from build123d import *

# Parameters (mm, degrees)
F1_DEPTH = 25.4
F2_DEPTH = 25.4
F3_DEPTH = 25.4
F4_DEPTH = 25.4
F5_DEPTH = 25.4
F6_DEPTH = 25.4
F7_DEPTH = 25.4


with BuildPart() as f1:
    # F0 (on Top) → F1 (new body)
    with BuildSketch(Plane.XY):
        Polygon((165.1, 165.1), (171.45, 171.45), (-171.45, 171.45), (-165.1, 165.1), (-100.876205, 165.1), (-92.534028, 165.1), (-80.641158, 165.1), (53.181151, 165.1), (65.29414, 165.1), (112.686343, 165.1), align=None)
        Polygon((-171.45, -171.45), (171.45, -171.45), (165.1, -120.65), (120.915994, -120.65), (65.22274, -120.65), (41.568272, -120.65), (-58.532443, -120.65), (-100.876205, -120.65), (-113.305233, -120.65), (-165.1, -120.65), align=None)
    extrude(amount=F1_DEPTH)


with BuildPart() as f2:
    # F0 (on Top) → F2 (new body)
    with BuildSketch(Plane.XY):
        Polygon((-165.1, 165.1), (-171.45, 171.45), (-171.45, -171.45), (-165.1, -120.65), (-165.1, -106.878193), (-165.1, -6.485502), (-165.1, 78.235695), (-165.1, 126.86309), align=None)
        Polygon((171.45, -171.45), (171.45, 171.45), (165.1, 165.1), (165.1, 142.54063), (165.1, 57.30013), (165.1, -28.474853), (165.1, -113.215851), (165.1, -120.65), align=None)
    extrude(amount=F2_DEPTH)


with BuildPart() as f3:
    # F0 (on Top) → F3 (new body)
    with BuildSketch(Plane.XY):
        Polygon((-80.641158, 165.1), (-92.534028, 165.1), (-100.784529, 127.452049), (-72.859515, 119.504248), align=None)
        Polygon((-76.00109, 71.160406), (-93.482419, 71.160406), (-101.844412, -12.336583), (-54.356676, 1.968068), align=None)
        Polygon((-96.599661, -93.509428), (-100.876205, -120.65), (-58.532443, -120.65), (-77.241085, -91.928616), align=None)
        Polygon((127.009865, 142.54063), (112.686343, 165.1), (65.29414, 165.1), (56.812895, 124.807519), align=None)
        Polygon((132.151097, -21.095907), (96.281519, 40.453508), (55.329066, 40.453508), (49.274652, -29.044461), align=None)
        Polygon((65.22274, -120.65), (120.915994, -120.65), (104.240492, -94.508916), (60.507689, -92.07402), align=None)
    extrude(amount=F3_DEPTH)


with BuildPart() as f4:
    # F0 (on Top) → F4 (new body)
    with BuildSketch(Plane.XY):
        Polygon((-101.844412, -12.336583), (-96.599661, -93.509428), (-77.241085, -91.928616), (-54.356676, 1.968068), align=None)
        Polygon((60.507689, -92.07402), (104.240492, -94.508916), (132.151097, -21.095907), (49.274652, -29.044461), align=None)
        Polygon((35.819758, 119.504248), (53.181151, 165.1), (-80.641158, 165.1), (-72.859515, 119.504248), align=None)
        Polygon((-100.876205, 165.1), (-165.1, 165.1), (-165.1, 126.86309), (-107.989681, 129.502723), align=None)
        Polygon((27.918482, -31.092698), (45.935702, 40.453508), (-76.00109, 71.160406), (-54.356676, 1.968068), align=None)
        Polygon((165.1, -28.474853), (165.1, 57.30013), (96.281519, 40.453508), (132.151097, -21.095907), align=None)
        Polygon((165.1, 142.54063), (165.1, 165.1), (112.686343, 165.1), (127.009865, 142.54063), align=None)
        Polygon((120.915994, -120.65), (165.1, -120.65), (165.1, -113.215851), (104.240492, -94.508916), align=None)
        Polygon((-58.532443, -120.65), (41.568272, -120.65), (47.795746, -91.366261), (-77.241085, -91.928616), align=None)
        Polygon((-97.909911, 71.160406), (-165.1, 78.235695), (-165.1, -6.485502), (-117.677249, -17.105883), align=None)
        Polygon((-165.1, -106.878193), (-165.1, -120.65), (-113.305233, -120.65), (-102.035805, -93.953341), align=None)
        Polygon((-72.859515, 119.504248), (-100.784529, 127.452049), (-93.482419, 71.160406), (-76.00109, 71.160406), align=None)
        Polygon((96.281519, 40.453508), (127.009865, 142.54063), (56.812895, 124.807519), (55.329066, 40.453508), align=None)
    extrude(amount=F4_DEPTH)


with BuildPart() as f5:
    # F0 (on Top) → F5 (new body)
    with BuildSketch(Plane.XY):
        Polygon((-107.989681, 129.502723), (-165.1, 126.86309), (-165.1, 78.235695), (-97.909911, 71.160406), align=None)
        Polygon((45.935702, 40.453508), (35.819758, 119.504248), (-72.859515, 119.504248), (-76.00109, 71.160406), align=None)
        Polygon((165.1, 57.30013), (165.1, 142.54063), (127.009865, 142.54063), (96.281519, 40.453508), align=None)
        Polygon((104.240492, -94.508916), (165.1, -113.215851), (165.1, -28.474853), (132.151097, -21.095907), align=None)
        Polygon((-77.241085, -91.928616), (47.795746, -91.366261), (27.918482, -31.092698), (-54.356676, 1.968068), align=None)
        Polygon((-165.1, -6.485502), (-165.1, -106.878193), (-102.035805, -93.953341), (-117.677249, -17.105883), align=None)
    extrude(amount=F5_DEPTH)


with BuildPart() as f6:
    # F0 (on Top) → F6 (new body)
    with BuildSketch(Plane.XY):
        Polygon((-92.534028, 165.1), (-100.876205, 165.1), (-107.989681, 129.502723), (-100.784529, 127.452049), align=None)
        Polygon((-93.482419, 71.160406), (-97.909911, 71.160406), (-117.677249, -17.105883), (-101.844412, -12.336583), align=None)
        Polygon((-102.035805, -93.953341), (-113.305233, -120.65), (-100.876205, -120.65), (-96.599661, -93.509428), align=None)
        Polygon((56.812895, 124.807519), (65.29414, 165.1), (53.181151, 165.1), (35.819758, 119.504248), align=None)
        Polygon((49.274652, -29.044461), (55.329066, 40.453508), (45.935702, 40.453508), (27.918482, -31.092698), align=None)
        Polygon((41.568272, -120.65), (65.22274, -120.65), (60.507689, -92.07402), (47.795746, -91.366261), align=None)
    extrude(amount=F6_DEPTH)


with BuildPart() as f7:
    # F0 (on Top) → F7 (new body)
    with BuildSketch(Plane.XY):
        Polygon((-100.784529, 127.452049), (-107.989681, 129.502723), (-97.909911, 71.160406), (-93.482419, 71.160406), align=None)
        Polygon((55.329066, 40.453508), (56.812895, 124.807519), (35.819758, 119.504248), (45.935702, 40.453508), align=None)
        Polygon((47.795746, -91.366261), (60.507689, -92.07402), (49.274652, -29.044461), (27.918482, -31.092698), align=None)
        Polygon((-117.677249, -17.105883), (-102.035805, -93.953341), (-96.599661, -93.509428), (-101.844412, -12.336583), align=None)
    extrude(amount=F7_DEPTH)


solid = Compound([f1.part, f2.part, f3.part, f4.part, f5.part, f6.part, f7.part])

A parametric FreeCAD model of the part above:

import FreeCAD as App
import Part
import Sketcher

V = App.Vector
Q = App.Units.Quantity

doc = App.newDocument("Part")
body = doc.addObject("PartDesign::Body", "Body")
body.AllowCompound = True

# Sketch on XY plane
sketch1 = body.newObject("Sketcher::SketchObject", "Sketch")
sketch1.AttachmentSupport = (doc.getObject("XY_Plane"), [""])
sketch1.MapMode = "FlatFace"
sketch1.addGeometry([
    Part.LineSegment(V(165.1, 165.1, 0), V(171.45, 171.45, 0)),  # 0
    Part.LineSegment(V(171.45, 171.45, 0), V(-171.45, 171.45, 0)),  # 1
    Part.LineSegment(V(-171.45, 171.45, 0), V(-165.1, 165.1, 0)),  # 2
    Part.LineSegment(V(-165.1, 165.1, 0), V(165.1, 165.1, 0)),  # 3
    Part.LineSegment(V(-171.45, -171.45, 0), V(171.45, -171.45, 0)),  # 4
    Part.LineSegment(V(171.45, -171.45, 0), V(165.1, -120.65, 0)),  # 5
    Part.LineSegment(V(165.1, -120.65, 0), V(-165.1, -120.65, 0)),  # 6
    Part.LineSegment(V(-165.1, -120.65, 0), V(-171.45, -171.45, 0)),  # 7
], False)
sketch1.addConstraint([
    Sketcher.Constraint("Coincident", 0, 2, 1, 1),
    Sketcher.Constraint("Coincident", 1, 2, 2, 1),
    Sketcher.Constraint("Coincident", 2, 2, 3, 1),
    Sketcher.Constraint("Coincident", 3, 2, 0, 1),
    Sketcher.Constraint("Coincident", 4, 2, 5, 1),
    Sketcher.Constraint("Coincident", 5, 2, 6, 1),
    Sketcher.Constraint("Coincident", 6, 2, 7, 1),
    Sketcher.Constraint("Coincident", 7, 2, 4, 1),
    Sketcher.Constraint("Horizontal", 1),
    Sketcher.Constraint("Horizontal", 3),
    Sketcher.Constraint("Horizontal", 4),
    Sketcher.Constraint("Horizontal", 6),
    Sketcher.Constraint("Symmetric", 1, 2, 4, 2, -1, 1),
    Sketcher.Constraint("Perpendicular", 0, 2),
    Sketcher.Constraint("Vertical", 0, 2, 4, 2),
    Sketcher.Constraint("Vertical", 3, 2, 5, 2),
    Sketcher.Constraint("Vertical", 2, 2, 6, 2),
    Sketcher.Constraint("Vertical", 1, 2, 7, 2),
    Sketcher.Constraint("Equal", 0, 2),
    Sketcher.Constraint("DistanceX", 3, 1, 3, 2, Q("13 in")),
    Sketcher.Constraint("DistanceX", 1, 2, 1, 1, Q("13.5 in")),
    Sketcher.Constraint("DistanceY", 4, 2, 5, 2, Q("2 in")),
    Sketcher.Constraint("DistanceY", -1, 1, 2, 2, Q("6.5 in")),
])
pad1 = body.newObject("PartDesign::Pad", "Pad")
pad1.Profile = sketch1
pad1.Length = Q("1 in")
body2 = doc.addObject("PartDesign::Body", "Body001")
body2.AllowCompound = True

# Sketch on XY plane
sketch2 = body2.newObject("Sketcher::SketchObject", "Sketch001")
sketch2.AttachmentSupport = (doc.getObject("XY_Plane001"), [""])
sketch2.MapMode = "FlatFace"
sketch2.addGeometry([
    Part.LineSegment(V(-165.1, 165.1, 0), V(-171.45, 171.45, 0)),  # 0
    Part.LineSegment(V(-171.45, 171.45, 0), V(-171.45, -171.45, 0)),  # 1
    Part.LineSegment(V(-171.45, -171.45, 0), V(-165.1, -120.65, 0)),  # 2
    Part.LineSegment(V(-165.1, -120.65, 0), V(-165.1, 165.1, 0)),  # 3
    Part.LineSegment(V(171.45, -171.45, 0), V(171.45, 171.45, 0)),  # 4
    Part.LineSegment(V(171.45, 171.45, 0), V(165.1, 165.1, 0)),  # 5
    Part.LineSegment(V(165.1, 165.1, 0), V(165.1, -120.65, 0)),  # 6
    Part.LineSegment(V(165.1, -120.65, 0), V(171.45, -171.45, 0)),  # 7
], False)
sketch2.addConstraint([
    Sketcher.Constraint("Coincident", 0, 2, 1, 1),
    Sketcher.Constraint("Coincident", 1, 2, 2, 1),
    Sketcher.Constraint("Coincident", 2, 2, 3, 1),
    Sketcher.Constraint("Coincident", 3, 2, 0, 1),
    Sketcher.Constraint("Coincident", 4, 2, 5, 1),
    Sketcher.Constraint("Coincident", 5, 2, 6, 1),
    Sketcher.Constraint("Coincident", 6, 2, 7, 1),
    Sketcher.Constraint("Coincident", 7, 2, 4, 1),
    Sketcher.Constraint("Vertical", 1),
    Sketcher.Constraint("Vertical", 3),
    Sketcher.Constraint("Vertical", 4),
    Sketcher.Constraint("Vertical", 6),
    Sketcher.Constraint("Symmetric", 1, 2, 4, 2, -1, 1),
    Sketcher.Constraint("Symmetric", 3, 2, 5, 2, -2),
    Sketcher.Constraint("Perpendicular", 0, 5),
    Sketcher.Constraint("Horizontal", 0, 2, 4, 2),
    Sketcher.Constraint("Horizontal", 2, 2, 6, 2),
    Sketcher.Constraint("Horizontal", 1, 2, 7, 2),
    Sketcher.Constraint("DistanceY", 1, 2, 1, 1, Q("13.5 in")),
    Sketcher.Constraint("DistanceY", 1, 2, 2, 2, Q("2 in")),
    Sketcher.Constraint("DistanceX", 3, 2, 5, 2, Q("13 in")),
    Sketcher.Constraint("DistanceY", 3, 1, 3, 2, Q("11.25 in")),
])
pad2 = body2.newObject("PartDesign::Pad", "Pad001")
pad2.Profile = sketch2
pad2.Length = Q("1 in")
body3 = doc.addObject("PartDesign::Body", "Body002")
body3.AllowCompound = True

# Sketch on XY plane
sketch3 = body3.newObject("Sketcher::SketchObject", "Sketch002")
sketch3.AttachmentSupport = (doc.getObject("XY_Plane002"), [""])
sketch3.MapMode = "FlatFace"
sketch3.addGeometry([
    Part.LineSegment(V(-80.641158, 165.1, 0), V(-92.534028, 165.1, 0)),  # 0
    Part.LineSegment(V(-92.534028, 165.1, 0), V(-100.784529, 127.452049, 0)),  # 1
    Part.LineSegment(V(-100.784529, 127.452049, 0), V(-72.859515, 119.504248, 0)),  # 2
    Part.LineSegment(V(-72.859515, 119.504248, 0), V(-80.641158, 165.1, 0)),  # 3
    Part.LineSegment(V(-76.00109, 71.160406, 0), V(-93.482419, 71.160406, 0)),  # 4
    Part.LineSegment(V(-93.482419, 71.160406, 0), V(-101.844412, -12.336583, 0)),  # 5
    Part.LineSegment(V(-101.844412, -12.336583, 0), V(-54.356676, 1.968068, 0)),  # 6
    Part.LineSegment(V(-54.356676, 1.968068, 0), V(-76.00109, 71.160406, 0)),  # 7
    Part.LineSegment(V(-96.599661, -93.509428, 0), V(-100.876205, -120.65, 0)),  # 8
    Part.LineSegment(V(-100.876205, -120.65, 0), V(-58.532443, -120.65, 0)),  # 9
    Part.LineSegment(V(-58.532443, -120.65, 0), V(-77.241085, -91.928616, 0)),  # 10
    Part.LineSegment(V(-77.241085, -91.928616, 0), V(-96.599661, -93.509428, 0)),  # 11
    Part.LineSegment(V(127.009865, 142.54063, 0), V(112.686343, 165.1, 0)),  # 12
    Part.LineSegment(V(112.686343, 165.1, 0), V(65.29414, 165.1, 0)),  # 13
    Part.LineSegment(V(65.29414, 165.1, 0), V(56.812895, 124.807519, 0)),  # 14
    Part.LineSegment(V(56.812895, 124.807519, 0), V(127.009865, 142.54063, 0)),  # 15
    Part.LineSegment(V(132.151097, -21.095907, 0), V(96.281519, 40.453508, 0)),  # 16
    Part.LineSegment(V(96.281519, 40.453508, 0), V(55.329066, 40.453508, 0)),  # 17
    Part.LineSegment(V(55.329066, 40.453508, 0), V(49.274652, -29.044461, 0)),  # 18
    Part.LineSegment(V(49.274652, -29.044461, 0), V(132.151097, -21.095907, 0)),  # 19
    Part.LineSegment(V(65.22274, -120.65, 0), V(120.915994, -120.65, 0)),  # 20
    Part.LineSegment(V(120.915994, -120.65, 0), V(104.240492, -94.508916, 0)),  # 21
    Part.LineSegment(V(104.240492, -94.508916, 0), V(60.507689, -92.07402, 0)),  # 22
    Part.LineSegment(V(60.507689, -92.07402, 0), V(65.22274, -120.65, 0)),  # 23
], False)
sketch3.addConstraint([
    Sketcher.Constraint("Coincident", 0, 2, 1, 1),
    Sketcher.Constraint("Coincident", 1, 2, 2, 1),
    Sketcher.Constraint("Coincident", 2, 2, 3, 1),
    Sketcher.Constraint("Coincident", 3, 2, 0, 1),
    Sketcher.Constraint("Coincident", 4, 2, 5, 1),
    Sketcher.Constraint("Coincident", 5, 2, 6, 1),
    Sketcher.Constraint("Coincident", 6, 2, 7, 1),
    Sketcher.Constraint("Coincident", 7, 2, 4, 1),
    Sketcher.Constraint("Coincident", 8, 2, 9, 1),
    Sketcher.Constraint("Coincident", 9, 2, 10, 1),
    Sketcher.Constraint("Coincident", 10, 2, 11, 1),
    Sketcher.Constraint("Coincident", 11, 2, 8, 1),
    Sketcher.Constraint("Coincident", 12, 2, 13, 1),
    Sketcher.Constraint("Coincident", 13, 2, 14, 1),
    Sketcher.Constraint("Coincident", 14, 2, 15, 1),
    Sketcher.Constraint("Coincident", 15, 2, 12, 1),
    Sketcher.Constraint("Coincident", 16, 2, 17, 1),
    Sketcher.Constraint("Coincident", 17, 2, 18, 1),
    Sketcher.Constraint("Coincident", 18, 2, 19, 1),
    Sketcher.Constraint("Coincident", 19, 2, 16, 1),
    Sketcher.Constraint("Coincident", 20, 2, 21, 1),
    Sketcher.Constraint("Coincident", 21, 2, 22, 1),
    Sketcher.Constraint("Coincident", 22, 2, 23, 1),
    Sketcher.Constraint("Coincident", 23, 2, 20, 1),
    Sketcher.Constraint("Horizontal", 0),
    Sketcher.Constraint("Horizontal", 4),
    Sketcher.Constraint("Horizontal", 9),
    Sketcher.Constraint("Horizontal", 13),
    Sketcher.Constraint("Horizontal", 17),
    Sketcher.Constraint("Horizontal", 20),
    Sketcher.Constraint("Horizontal", 3, 2, 12, 2),
    Sketcher.Constraint("Horizontal", 9, 2, 20, 2),
    Sketcher.Constraint("DistanceY", -1, 1, 0, 2, Q("6.5 in")),
    Sketcher.Constraint("DistanceY", 8, 2, -1, 1, Q("4.75 in")),
    Sketcher.Constraint("DistanceX", 0, 2, 0, 1, Q("11.89287 mm")),
    Sketcher.Constraint("DistanceX", 4, 2, 4, 1, Q("17.481329 mm")),
    Sketcher.Constraint("DistanceX", 9, 1, 9, 2, Q("42.343762 mm")),
    Sketcher.Constraint("DistanceX", 1, 2, 0, 2, Q("8.250501 mm")),
    Sketcher.Constraint("DistanceY", 2, 2, 1, 2, Q("7.947801 mm")),
    Sketcher.Constraint("DistanceX", 3, 2, 12, 2, Q("193.327501 mm")),
    Sketcher.Constraint("DistanceX", 17, 2, 15, 2, Q("71.680799 mm")),
    Sketcher.Constraint("DistanceX", 14, 2, 19, 2, Q("75.338202 mm")),
    Sketcher.Constraint("DistanceX", 21, 2, 20, 2, Q("16.675502 mm")),
    Sketcher.Constraint("Distance", 5, Q("83.91466 mm")),
    Sketcher.Constraint("Distance", 7, Q("72.498692 mm")),
    Sketcher.Constraint("Distance", 10, Q("34.277269 mm")),
    Sketcher.Constraint("Distance", 18, Q("69.76119 mm")),
    Sketcher.Constraint("Distance", 19, Q("83.256739 mm")),
    Sketcher.Constraint("Distance", 23, Q("28.962361 mm")),
    Sketcher.Constraint("DistanceX", 13, 2, 13, 1, Q("47.392203 mm")),
    Sketcher.Constraint("DistanceX", 17, 2, 17, 1, Q("40.952453 mm")),
    Sketcher.Constraint("DistanceX", 20, 1, 20, 2, Q("55.693254 mm")),
    Sketcher.Constraint("DistanceX", 0, 2, -1, 1, Q("92.534028 mm")),
    Sketcher.Constraint("DistanceY", -1, 1, 1, 2, Q("127.452049 mm")),
    Sketcher.Constraint("DistanceX", 4, 2, -1, 1, Q("93.482419 mm")),
    Sketcher.Constraint("DistanceX", 11, 2, -1, 1, Q("96.599661 mm")),
    Sketcher.Constraint("DistanceY", 11, 2, -1, 1, Q("93.509428 mm")),
    Sketcher.Constraint("DistanceY", -1, 1, 14, 2, Q("124.807519 mm")),
    Sketcher.Constraint("DistanceY", -1, 1, 15, 2, Q("142.54063 mm")),
    Sketcher.Constraint("DistanceX", -1, 1, 16, 2, Q("96.281519 mm")),
    Sketcher.Constraint("DistanceY", 18, 2, -1, 1, Q("29.044461 mm")),
    Sketcher.Constraint("DistanceX", -1, 1, 22, 2, Q("60.507689 mm")),
    Sketcher.Constraint("DistanceY", 22, 2, -1, 1, Q("92.07402 mm")),
    Sketcher.Constraint("DistanceY", 5, 2, 4, 2, Q("83.496989 mm")),
    Sketcher.Constraint("DistanceY", 5, 2, 2, 2, Q("131.840831 mm")),
    Sketcher.Constraint("DistanceY", 5, 2, 6, 2, Q("14.304651 mm")),
    Sketcher.Constraint("DistanceX", 2, 2, 6, 2, Q("18.502839 mm")),
    Sketcher.Constraint("DistanceX", 8, 2, 6, 2, Q("46.519529 mm")),
    Sketcher.Constraint("DistanceX", 10, 2, 9, 2, Q("18.708642 mm")),
    Sketcher.Constraint("DistanceX", 2, 2, 14, 2, Q("129.67241 mm")),
    Sketcher.Constraint("DistanceY", 16, 2, 14, 2, Q("84.354011 mm")),
    Sketcher.Constraint("DistanceY", 21, 2, 19, 2, Q("73.413009 mm")),
])
pad3 = body3.newObject("PartDesign::Pad", "Pad002")
pad3.Profile = sketch3
pad3.Length = Q("1 in")
body4 = doc.addObject("PartDesign::Body", "Body003")
body4.AllowCompound = True

# Sketch on XY plane
sketch4 = body4.newObject("Sketcher::SketchObject", "Sketch003")
sketch4.AttachmentSupport = (doc.getObject("XY_Plane003"), [""])
sketch4.MapMode = "FlatFace"
sketch4.addGeometry([
    Part.LineSegment(V(-101.844412, -12.336583, 0), V(-96.599661, -93.509428, 0)),  # 0
    Part.LineSegment(V(-96.599661, -93.509428, 0), V(-77.241085, -91.928616, 0)),  # 1
    Part.LineSegment(V(-77.241085, -91.928616, 0), V(-54.356676, 1.968068, 0)),  # 2
    Part.LineSegment(V(-54.356676, 1.968068, 0), V(-101.844412, -12.336583, 0)),  # 3
    Part.LineSegment(V(60.507689, -92.07402, 0), V(104.240492, -94.508916, 0)),  # 4
    Part.LineSegment(V(104.240492, -94.508916, 0), V(132.151097, -21.095907, 0)),  # 5
    Part.LineSegment(V(132.151097, -21.095907, 0), V(49.274652, -29.044461, 0)),  # 6
    Part.LineSegment(V(49.274652, -29.044461, 0), V(60.507689, -92.07402, 0)),  # 7
    Part.LineSegment(V(35.819758, 119.504248, 0), V(53.181151, 165.1, 0)),  # 8
    Part.LineSegment(V(53.181151, 165.1, 0), V(-80.641158, 165.1, 0)),  # 9
    Part.LineSegment(V(-80.641158, 165.1, 0), V(-72.859515, 119.504248, 0)),  # 10
    Part.LineSegment(V(-72.859515, 119.504248, 0), V(35.819758, 119.504248, 0)),  # 11
    Part.LineSegment(V(-100.876205, 165.1, 0), V(-165.1, 165.1, 0)),  # 12
    Part.LineSegment(V(-165.1, 165.1, 0), V(-165.1, 126.86309, 0)),  # 13
    Part.LineSegment(V(-165.1, 126.86309, 0), V(-107.989681, 129.502723, 0)),  # 14
    Part.LineSegment(V(-107.989681, 129.502723, 0), V(-100.876205, 165.1, 0)),  # 15
    Part.LineSegment(V(27.918482, -31.092698, 0), V(45.935702, 40.453508, 0)),  # 16
    Part.LineSegment(V(45.935702, 40.453508, 0), V(-76.00109, 71.160406, 0)),  # 17
    Part.LineSegment(V(-76.00109, 71.160406, 0), V(-54.356676, 1.968068, 0)),  # 18
    Part.LineSegment(V(-54.356676, 1.968068, 0), V(27.918482, -31.092698, 0)),  # 19
    Part.LineSegment(V(165.1, -28.474853, 0), V(165.1, 57.30013, 0)),  # 20
    Part.LineSegment(V(165.1, 57.30013, 0), V(96.281519, 40.453508, 0)),  # 21
    Part.LineSegment(V(96.281519, 40.453508, 0), V(132.151097, -21.095907, 0)),  # 22
    Part.LineSegment(V(132.151097, -21.095907, 0), V(165.1, -28.474853, 0)),  # 23
    Part.LineSegment(V(165.1, 142.54063, 0), V(165.1, 165.1, 0)),  # 24
    Part.LineSegment(V(165.1, 165.1, 0), V(112.686343, 165.1, 0)),  # 25
    Part.LineSegment(V(112.686343, 165.1, 0), V(127.009865, 142.54063, 0)),  # 26
    Part.LineSegment(V(127.009865, 142.54063, 0), V(165.1, 142.54063, 0)),  # 27
    Part.LineSegment(V(120.915994, -120.65, 0), V(165.1, -120.65, 0)),  # 28
    Part.LineSegment(V(165.1, -120.65, 0), V(165.1, -113.215851, 0)),  # 29
    Part.LineSegment(V(165.1, -113.215851, 0), V(104.240492, -94.508916, 0)),  # 30
    Part.LineSegment(V(104.240492, -94.508916, 0), V(120.915994, -120.65, 0)),  # 31
    Part.LineSegment(V(-58.532443, -120.65, 0), V(41.568272, -120.65, 0)),  # 32
    Part.LineSegment(V(41.568272, -120.65, 0), V(47.795746, -91.366261, 0)),  # 33
    Part.LineSegment(V(47.795746, -91.366261, 0), V(-77.241085, -91.928616, 0)),  # 34
    Part.LineSegment(V(-77.241085, -91.928616, 0), V(-58.532443, -120.65, 0)),  # 35
    Part.LineSegment(V(-97.909911, 71.160406, 0), V(-165.1, 78.235695, 0)),  # 36
    Part.LineSegment(V(-165.1, 78.235695, 0), V(-165.1, -6.485502, 0)),  # 37
    Part.LineSegment(V(-165.1, -6.485502, 0), V(-117.677249, -17.105883, 0)),  # 38
    Part.LineSegment(V(-117.677249, -17.105883, 0), V(-97.909911, 71.160406, 0)),  # 39
    Part.LineSegment(V(-165.1, -106.878193, 0), V(-165.1, -120.65, 0)),  # 40
    Part.LineSegment(V(-165.1, -120.65, 0), V(-113.305233, -120.65, 0)),  # 41
    Part.LineSegment(V(-113.305233, -120.65, 0), V(-102.035805, -93.953341, 0)),  # 42
    Part.LineSegment(V(-102.035805, -93.953341, 0), V(-165.1, -106.878193, 0)),  # 43
    Part.LineSegment(V(-72.859515, 119.504248, 0), V(-100.784529, 127.452049, 0)),  # 44
    Part.LineSegment(V(-100.784529, 127.452049, 0), V(-93.482419, 71.160406, 0)),  # 45
    Part.LineSegment(V(-93.482419, 71.160406, 0), V(-76.00109, 71.160406, 0)),  # 46
    Part.LineSegment(V(-76.00109, 71.160406, 0), V(-72.859515, 119.504248, 0)),  # 47
    Part.LineSegment(V(96.281519, 40.453508, 0), V(127.009865, 142.54063, 0)),  # 48
    Part.LineSegment(V(127.009865, 142.54063, 0), V(56.812895, 124.807519, 0)),  # 49
    Part.LineSegment(V(56.812895, 124.807519, 0), V(55.329066, 40.453508, 0)),  # 50
    Part.LineSegment(V(55.329066, 40.453508, 0), V(96.281519, 40.453508, 0)),  # 51
], False)
sketch4.addConstraint([
    Sketcher.Constraint("Coincident", 0, 2, 1, 1),
    Sketcher.Constraint("Coincident", 1, 2, 2, 1),
    Sketcher.Constraint("Coincident", 2, 2, 3, 1),
    Sketcher.Constraint("Coincident", 3, 2, 0, 1),
    Sketcher.Constraint("Coincident", 4, 2, 5, 1),
    Sketcher.Constraint("Coincident", 5, 2, 6, 1),
    Sketcher.Constraint("Coincident", 6, 2, 7, 1),
    Sketcher.Constraint("Coincident", 7, 2, 4, 1),
    Sketcher.Constraint("Coincident", 8, 2, 9, 1),
    Sketcher.Constraint("Coincident", 9, 2, 10, 1),
    Sketcher.Constraint("Coincident", 10, 2, 11, 1),
    Sketcher.Constraint("Coincident", 11, 2, 8, 1),
    Sketcher.Constraint("Coincident", 12, 2, 13, 1),
    Sketcher.Constraint("Coincident", 13, 2, 14, 1),
    Sketcher.Constraint("Coincident", 14, 2, 15, 1),
    Sketcher.Constraint("Coincident", 15, 2, 12, 1),
    Sketcher.Constraint("Coincident", 16, 2, 17, 1),
    Sketcher.Constraint("Coincident", 17, 2, 18, 1),
    Sketcher.Constraint("Coincident", 18, 2, 19, 1),
    Sketcher.Constraint("Coincident", 19, 2, 16, 1),
    Sketcher.Constraint("Coincident", 20, 2, 21, 1),
    Sketcher.Constraint("Coincident", 21, 2, 22, 1),
    Sketcher.Constraint("Coincident", 22, 2, 23, 1),
    Sketcher.Constraint("Coincident", 23, 2, 20, 1),
    Sketcher.Constraint("Coincident", 24, 2, 25, 1),
    Sketcher.Constraint("Coincident", 25, 2, 26, 1),
    Sketcher.Constraint("Coincident", 26, 2, 27, 1),
    Sketcher.Constraint("Coincident", 27, 2, 24, 1),
    Sketcher.Constraint("Coincident", 28, 2, 29, 1),
    Sketcher.Constraint("Coincident", 29, 2, 30, 1),
    Sketcher.Constraint("Coincident", 30, 2, 31, 1),
    Sketcher.Constraint("Coincident", 31, 2, 28, 1),
    Sketcher.Constraint("Coincident", 32, 2, 33, 1),
    Sketcher.Constraint("Coincident", 33, 2, 34, 1),
    Sketcher.Constraint("Coincident", 34, 2, 35, 1),
    Sketcher.Constraint("Coincident", 35, 2, 32, 1),
    Sketcher.Constraint("Coincident", 36, 2, 37, 1),
    Sketcher.Constraint("Coincident", 37, 2, 38, 1),
    Sketcher.Constraint("Coincident", 38, 2, 39, 1),
    Sketcher.Constraint("Coincident", 39, 2, 36, 1),
    Sketcher.Constraint("Coincident", 40, 2, 41, 1),
    Sketcher.Constraint("Coincident", 41, 2, 42, 1),
    Sketcher.Constraint("Coincident", 42, 2, 43, 1),
    Sketcher.Constraint("Coincident", 43, 2, 40, 1),
    Sketcher.Constraint("Coincident", 44, 2, 45, 1),
    Sketcher.Constraint("Coincident", 45, 2, 46, 1),
    Sketcher.Constraint("Coincident", 46, 2, 47, 1),
    Sketcher.Constraint("Coincident", 47, 2, 44, 1),
    Sketcher.Constraint("Coincident", 48, 2, 49, 1),
    Sketcher.Constraint("Coincident", 49, 2, 50, 1),
    Sketcher.Constraint("Coincident", 50, 2, 51, 1),
    Sketcher.Constraint("Coincident", 51, 2, 48, 1),
    Sketcher.Constraint("Horizontal", 9),
    Sketcher.Constraint("Horizontal", 11),
    Sketcher.Constraint("Horizontal", 12),
    Sketcher.Constraint("Vertical", 13),
    Sketcher.Constraint("Vertical", 20),
    Sketcher.Constraint("Vertical", 24),
    Sketcher.Constraint("Horizontal", 25),
    Sketcher.Constraint("Horizontal", 27),
    Sketcher.Constraint("Horizontal", 28),
    Sketcher.Constraint("Vertical", 29),
    Sketcher.Constraint("Horizontal", 32),
    Sketcher.Constraint("Vertical", 37),
    Sketcher.Constraint("Vertical", 40),
    Sketcher.Constraint("Horizontal", 41),
    Sketcher.Constraint("Horizontal", 46),
    Sketcher.Constraint("Horizontal", 51),
    Sketcher.Constraint("Coincident", 18, 2, 2, 2),
    Sketcher.Constraint("Coincident", 22, 2, 5, 2),
    Sketcher.Constraint("Coincident", 30, 2, 4, 2),
    Sketcher.Constraint("Coincident", 34, 2, 1, 2),
    Sketcher.Constraint("Coincident", 46, 2, 17, 2),
    Sketcher.Constraint("Coincident", 47, 2, 10, 2),
    Sketcher.Constraint("Coincident", 48, 2, 26, 2),
    Sketcher.Constraint("Coincident", 51, 2, 21, 2),
    Sketcher.Constraint("Symmetric", 12, 2, 24, 2, -2),
    Sketcher.Constraint("Symmetric", 28, 2, 40, 2, -2),
    Sketcher.Constraint("Perpendicular", 16, 17),
    Sketcher.Constraint("Parallel", 23, 38),
    Sketcher.Constraint("Perpendicular", 38, 39),
    Sketcher.Constraint("Horizontal", 9, 2, 12, 2),
    Sketcher.Constraint("Horizontal", 16, 2, 21, 2),
    Sketcher.Constraint("Horizontal", 31, 2, 32, 2),
    Sketcher.Constraint("Horizontal", 17, 2, 39, 2),
    Sketcher.Constraint("Vertical", 23, 2, 24, 2),
    Sketcher.Constraint("Vertical", 27, 2, 28, 2),
    Sketcher.Constraint("Vertical", 13, 2, 36, 2),
    Sketcher.Constraint("DistanceY", -1, 1, 8, 2, Q("6.5 in")),
    Sketcher.Constraint("DistanceX", 12, 2, -1, 1, Q("6.5 in")),
    Sketcher.Constraint("DistanceY", 28, 2, -1, 1, Q("4.75 in")),
    Sketcher.Constraint("Distance", 48, Q("106.611499 mm")),
    Sketcher.Constraint("DistanceX", 9, 2, 9, 1, Q("133.822309 mm")),
    Sketcher.Constraint("DistanceX", 46, 1, 46, 2, Q("17.481329 mm")),
    Sketcher.Constraint("DistanceY", 13, 2, 13, 1, Q("38.23691 mm")),
    Sketcher.Constraint("DistanceY", 24, 1, 24, 2, Q("22.55937 mm")),
    Sketcher.Constraint("DistanceY", 29, 1, 29, 2, Q("7.434149 mm")),
    Sketcher.Constraint("DistanceY", 4, 2, 1, 2, Q("2.5803 mm")),
    Sketcher.Constraint("DistanceX", 6, 2, 8, 2, Q("3.906499 mm")),
    Sketcher.Constraint("DistanceX", 16, 2, 20, 2, Q("119.164298 mm")),
    Sketcher.Constraint("DistanceY", 20, 2, 26, 2, Q("85.2405 mm")),
    Sketcher.Constraint("DistanceY", 29, 2, 23, 2, Q("84.740998 mm")),
    Sketcher.Constraint("DistanceX", 4, 2, 31, 2, Q("16.675502 mm")),
    Sketcher.Constraint("DistanceY", 33, 2, 6, 2, Q("62.3218 mm")),
    Sketcher.Constraint("DistanceY", 38, 2, 3, 2, Q("4.7693 mm")),
    Sketcher.Constraint("DistanceY", 10, 2, 44, 2, Q("7.947801 mm")),
    Sketcher.Constraint("Distance", 2, Q("96.645142 mm")),
    Sketcher.Constraint("Distance", 5, Q("78.539619 mm")),
    Sketcher.Constraint("Distance", 6, Q("83.256739 mm")),
    Sketcher.Constraint("Distance", 14, Q("57.171288 mm")),
    Sketcher.Constraint("Distance", 15, Q("36.30107 mm")),
    Sketcher.Constraint("Distance", 16, Q("73.779942 mm")),
    Sketcher.Constraint("Distance", 18, Q("72.498692 mm")),
    Sketcher.Constraint("Distance", 21, Q("70.85049 mm")),
    Sketcher.Constraint("Distance", 35, Q("34.277269 mm")),
    Sketcher.Constraint("Distance", 39, Q("90.45267 mm")),
    Sketcher.Constraint("Distance", 43, Q("64.37503 mm")),
    Sketcher.Constraint("Distance", 45, Q("56.763279 mm")),
    Sketcher.Constraint("Distance", 47, Q("48.44581 mm")),
    Sketcher.Constraint("Distance", 50, Q("84.367061 mm")),
    Sketcher.Constraint("DistanceX", 11, 1, 11, 2, Q("108.679273 mm")),
    Sketcher.Constraint("DistanceX", 12, 2, 12, 1, Q("64.223795 mm")),
    Sketcher.Constraint("DistanceX", 25, 2, 25, 1, Q("52.413657 mm")),
    Sketcher.Constraint("DistanceX", 27, 1, 27, 2, Q("38.090135 mm")),
    Sketcher.Constraint("DistanceX", 28, 1, 28, 2, Q("44.184006 mm")),
    Sketcher.Constraint("DistanceX", 32, 1, 32, 2, Q("100.100715 mm")),
    Sketcher.Constraint("DistanceX", 41, 1, 41, 2, Q("51.794767 mm")),
    Sketcher.Constraint("DistanceX", 51, 1, 51, 2, Q("40.952453 mm")),
    Sketcher.Constraint("DistanceY", 37, 2, 37, 1, Q("84.721197 mm")),
    Sketcher.Constraint("DistanceY", 40, 2, 40, 1, Q("13.771807 mm")),
    Sketcher.Constraint("DistanceX", 0, 2, -1, 1, Q("96.599661 mm")),
    Sketcher.Constraint("DistanceY", 0, 2, -1, 1, Q("93.509428 mm")),
    Sketcher.Constraint("DistanceY", 6, 2, -1, 1, Q("29.044461 mm")),
    Sketcher.Constraint("DistanceX", -1, 1, 7, 2, Q("60.507689 mm")),
    Sketcher.Constraint("DistanceY", 7, 2, -1, 1, Q("92.07402 mm")),
    Sketcher.Constraint("DistanceX", -1, 1, 8, 2, Q("53.181151 mm")),
    Sketcher.Constraint("DistanceY", -1, 1, 10, 2, Q("119.504248 mm")),
    Sketcher.Constraint("DistanceX", 17, 2, -1, 1, Q("76.00109 mm")),
    Sketcher.Constraint("DistanceX", 38, 2, -1, 1, Q("117.677249 mm")),
    Sketcher.Constraint("DistanceX", 39, 2, -1, 1, Q("97.909911 mm")),
    Sketcher.Constraint("DistanceY", 42, 2, -1, 1, Q("93.953341 mm")),
    Sketcher.Constraint("DistanceX", 44, 2, -1, 1, Q("100.784529 mm")),
    Sketcher.Constraint("DistanceY", -1, 1, 49, 2, Q("124.807519 mm")),
    Sketcher.Constraint("DistanceX", 1, 2, 2, 2, Q("22.884409 mm")),
    Sketcher.Constraint("DistanceX", 3, 2, 0, 2, Q("5.244751 mm")),
    Sketcher.Constraint("DistanceX", 35, 2, 33, 2, Q("106.328189 mm")),
])
pad4 = body4.newObject("PartDesign::Pad", "Pad003")
pad4.Profile = sketch4
pad4.Length = Q("1 in")
body5 = doc.addObject("PartDesign::Body", "Body004")
body5.AllowCompound = True

# Sketch on XY plane
sketch5 = body5.newObject("Sketcher::SketchObject", "Sketch004")
sketch5.AttachmentSupport = (doc.getObject("XY_Plane004"), [""])
sketch5.MapMode = "FlatFace"
sketch5.addGeometry([
    Part.LineSegment(V(-107.989681, 129.502723, 0), V(-165.1, 126.86309, 0)),  # 0
    Part.LineSegment(V(-165.1, 126.86309, 0), V(-165.1, 78.235695, 0)),  # 1
    Part.LineSegment(V(-165.1, 78.235695, 0), V(-97.909911, 71.160406, 0)),  # 2
    Part.LineSegment(V(-97.909911, 71.160406, 0), V(-107.989681, 129.502723, 0)),  # 3
    Part.LineSegment(V(45.935702, 40.453508, 0), V(35.819758, 119.504248, 0)),  # 4
    Part.LineSegment(V(35.819758, 119.504248, 0), V(-72.859515, 119.504248, 0)),  # 5
    Part.LineSegment(V(-72.859515, 119.504248, 0), V(-76.00109, 71.160406, 0)),  # 6
    Part.LineSegment(V(-76.00109, 71.160406, 0), V(45.935702, 40.453508, 0)),  # 7
    Part.LineSegment(V(165.1, 57.30013, 0), V(165.1, 142.54063, 0)),  # 8
    Part.LineSegment(V(165.1, 142.54063, 0), V(127.009865, 142.54063, 0)),  # 9
    Part.LineSegment(V(127.009865, 142.54063, 0), V(96.281519, 40.453508, 0)),  # 10
    Part.LineSegment(V(96.281519, 40.453508, 0), V(165.1, 57.30013, 0)),  # 11
    Part.LineSegment(V(104.240492, -94.508916, 0), V(165.1, -113.215851, 0)),  # 12
    Part.LineSegment(V(165.1, -113.215851, 0), V(165.1, -28.474853, 0)),  # 13
    Part.LineSegment(V(165.1, -28.474853, 0), V(132.151097, -21.095907, 0)),  # 14
    Part.LineSegment(V(132.151097, -21.095907, 0), V(104.240492, -94.508916, 0)),  # 15
    Part.LineSegment(V(-77.241085, -91.928616, 0), V(47.795746, -91.366261, 0)),  # 16
    Part.LineSegment(V(47.795746, -91.366261, 0), V(27.918482, -31.092698, 0)),  # 17
    Part.LineSegment(V(27.918482, -31.092698, 0), V(-54.356676, 1.968068, 0)),  # 18
    Part.LineSegment(V(-54.356676, 1.968068, 0), V(-77.241085, -91.928616, 0)),  # 19
    Part.LineSegment(V(-165.1, -6.485502, 0), V(-165.1, -106.878193, 0)),  # 20
    Part.LineSegment(V(-165.1, -106.878193, 0), V(-102.035805, -93.953341, 0)),  # 21
    Part.LineSegment(V(-102.035805, -93.953341, 0), V(-117.677249, -17.105883, 0)),  # 22
    Part.LineSegment(V(-117.677249, -17.105883, 0), V(-165.1, -6.485502, 0)),  # 23
], False)
sketch5.addConstraint([
    Sketcher.Constraint("Coincident", 0, 2, 1, 1),
    Sketcher.Constraint("Coincident", 1, 2, 2, 1),
    Sketcher.Constraint("Coincident", 2, 2, 3, 1),
    Sketcher.Constraint("Coincident", 3, 2, 0, 1),
    Sketcher.Constraint("Coincident", 4, 2, 5, 1),
    Sketcher.Constraint("Coincident", 5, 2, 6, 1),
    Sketcher.Constraint("Coincident", 6, 2, 7, 1),
    Sketcher.Constraint("Coincident", 7, 2, 4, 1),
    Sketcher.Constraint("Coincident", 8, 2, 9, 1),
    Sketcher.Constraint("Coincident", 9, 2, 10, 1),
    Sketcher.Constraint("Coincident", 10, 2, 11, 1),
    Sketcher.Constraint("Coincident", 11, 2, 8, 1),
    Sketcher.Constraint("Coincident", 12, 2, 13, 1),
    Sketcher.Constraint("Coincident", 13, 2, 14, 1),
    Sketcher.Constraint("Coincident", 14, 2, 15, 1),
    Sketcher.Constraint("Coincident", 15, 2, 12, 1),
    Sketcher.Constraint("Coincident", 16, 2, 17, 1),
    Sketcher.Constraint("Coincident", 17, 2, 18, 1),
    Sketcher.Constraint("Coincident", 18, 2, 19, 1),
    Sketcher.Constraint("Coincident", 19, 2, 16, 1),
    Sketcher.Constraint("Coincident", 20, 2, 21, 1),
    Sketcher.Constraint("Coincident", 21, 2, 22, 1),
    Sketcher.Constraint("Coincident", 22, 2, 23, 1),
    Sketcher.Constraint("Coincident", 23, 2, 20, 1),
    Sketcher.Constraint("Vertical", 1),
    Sketcher.Constraint("Horizontal", 5),
    Sketcher.Constraint("Vertical", 8),
    Sketcher.Constraint("Horizontal", 9),
    Sketcher.Constraint("Vertical", 13),
    Sketcher.Constraint("Vertical", 20),
    Sketcher.Constraint("Parallel", 14, 23),
    Sketcher.Constraint("Horizontal", 2, 2, 6, 2),
    Sketcher.Constraint("Horizontal", 7, 2, 10, 2),
    Sketcher.Constraint("Vertical", 11, 2, 12, 2),
    Sketcher.Constraint("Vertical", 1, 2, 20, 2),
    Sketcher.Constraint("DistanceX", 0, 2, -1, 1, Q("6.5 in")),
    Sketcher.Constraint("DistanceX", -1, 1, 8, 2, Q("6.5 in")),
    Sketcher.Constraint("DistanceY", 8, 1, 8, 2, Q("85.2405 mm")),
    Sketcher.Constraint("DistanceY", 13, 1, 13, 2, Q("84.740998 mm")),
    Sketcher.Constraint("Distance", 10, Q("106.611499 mm")),
    Sketcher.Constraint("DistanceY", 20, 2, 20, 1, Q("100.392691 mm")),
    Sketcher.Constraint("DistanceX", 7, 2, 8, 2, Q("119.164298 mm")),
    Sketcher.Constraint("DistanceY", 20, 2, 2, 2, Q("178.038599 mm")),
    Sketcher.Constraint("Distance", 0, Q("57.171288 mm")),
    Sketcher.Constraint("Distance", 4, Q("79.695369 mm")),
    Sketcher.Constraint("Distance", 6, Q("48.44581 mm")),
    Sketcher.Constraint("Distance", 11, Q("70.85049 mm")),
    Sketcher.Constraint("Distance", 15, Q("78.539619 mm")),
    Sketcher.Constraint("Distance", 17, Q("63.46659 mm")),
    Sketcher.Constraint("Distance", 19, Q("96.645142 mm")),
    Sketcher.Constraint("Distance", 21, Q("64.37503 mm")),
    Sketcher.Constraint("DistanceX", 5, 2, 5, 1, Q("108.679273 mm")),
    Sketcher.Constraint("DistanceX", 9, 2, 9, 1, Q("38.090135 mm")),
    Sketcher.Constraint("DistanceY", 1, 2, 1, 1, Q("48.627395 mm")),
    Sketcher.Constraint("DistanceY", -1, 1, 0, 2, Q("126.86309 mm")),
    Sketcher.Constraint("DistanceX", 2, 2, -1, 1, Q("97.909911 mm")),
    Sketcher.Constraint("DistanceX", 3, 2, -1, 1, Q("107.989681 mm")),
    Sketcher.Constraint("DistanceY", -1, 1, 4, 2, Q("119.504248 mm")),
    Sketcher.Constraint("DistanceX", 6, 2, -1, 1, Q("76.00109 mm")),
    Sketcher.Constraint("DistanceY", -1, 1, 8, 2, Q("142.54063 mm")),
    Sketcher.Constraint("DistanceY", 12, 2, -1, 1, Q("113.215851 mm")),
    Sketcher.Constraint("DistanceY", 16, 2, -1, 1, Q("91.366261 mm")),
    Sketcher.Constraint("DistanceY", 21, 2, -1, 1, Q("93.953341 mm")),
    Sketcher.Constraint("DistanceX", 22, 2, -1, 1, Q("117.677249 mm")),
    Sketcher.Constraint("DistanceY", 15, 2, 14, 2, Q("73.413009 mm")),
    Sketcher.Constraint("DistanceX", 7, 2, 15, 2, Q("58.30479 mm")),
    Sketcher.Constraint("DistanceX", 16, 2, 14, 2, Q("84.355351 mm")),
    Sketcher.Constraint("DistanceX", 17, 2, 7, 2, Q("18.01722 mm")),
    Sketcher.Constraint("DistanceY", 17, 2, 14, 2, Q("9.996791 mm")),
    Sketcher.Constraint("DistanceX", 18, 2, 17, 2, Q("82.275158 mm")),
    Sketcher.Constraint("DistanceY", 18, 2, 7, 2, Q("38.48544 mm")),
    Sketcher.Constraint("DistanceX", 19, 2, 18, 2, Q("22.884409 mm")),
])
pad5 = body5.newObject("PartDesign::Pad", "Pad004")
pad5.Profile = sketch5
pad5.Length = Q("1 in")
body6 = doc.addObject("PartDesign::Body", "Body005")
body6.AllowCompound = True

# Sketch on XY plane
sketch6 = body6.newObject("Sketcher::SketchObject", "Sketch005")
sketch6.AttachmentSupport = (doc.getObject("XY_Plane005"), [""])
sketch6.MapMode = "FlatFace"
sketch6.addGeometry([
    Part.LineSegment(V(-92.534028, 165.1, 0), V(-100.876205, 165.1, 0)),  # 0
    Part.LineSegment(V(-100.876205, 165.1, 0), V(-107.989681, 129.502723, 0)),  # 1
    Part.LineSegment(V(-107.989681, 129.502723, 0), V(-100.784529, 127.452049, 0)),  # 2
    Part.LineSegment(V(-100.784529, 127.452049, 0), V(-92.534028, 165.1, 0)),  # 3
    Part.LineSegment(V(-93.482419, 71.160406, 0), V(-97.909911, 71.160406, 0)),  # 4
    Part.LineSegment(V(-97.909911, 71.160406, 0), V(-117.677249, -17.105883, 0)),  # 5
    Part.LineSegment(V(-117.677249, -17.105883, 0), V(-101.844412, -12.336583, 0)),  # 6
    Part.LineSegment(V(-101.844412, -12.336583, 0), V(-93.482419, 71.160406, 0)),  # 7
    Part.LineSegment(V(-102.035805, -93.953341, 0), V(-113.305233, -120.65, 0)),  # 8
    Part.LineSegment(V(-113.305233, -120.65, 0), V(-100.876205, -120.65, 0)),  # 9
    Part.LineSegment(V(-100.876205, -120.65, 0), V(-96.599661, -93.509428, 0)),  # 10
    Part.LineSegment(V(-96.599661, -93.509428, 0), V(-102.035805, -93.953341, 0)),  # 11
    Part.LineSegment(V(56.812895, 124.807519, 0), V(65.29414, 165.1, 0)),  # 12
    Part.LineSegment(V(65.29414, 165.1, 0), V(53.181151, 165.1, 0)),  # 13
    Part.LineSegment(V(53.181151, 165.1, 0), V(35.819758, 119.504248, 0)),  # 14
    Part.LineSegment(V(35.819758, 119.504248, 0), V(56.812895, 124.807519, 0)),  # 15
    Part.LineSegment(V(49.274652, -29.044461, 0), V(55.329066, 40.453508, 0)),  # 16
    Part.LineSegment(V(55.329066, 40.453508, 0), V(45.935702, 40.453508, 0)),  # 17
    Part.LineSegment(V(45.935702, 40.453508, 0), V(27.918482, -31.092698, 0)),  # 18
    Part.LineSegment(V(27.918482, -31.092698, 0), V(49.274652, -29.044461, 0)),  # 19
    Part.LineSegment(V(41.568272, -120.65, 0), V(65.22274, -120.65, 0)),  # 20
    Part.LineSegment(V(65.22274, -120.65, 0), V(60.507689, -92.07402, 0)),  # 21
    Part.LineSegment(V(60.507689, -92.07402, 0), V(47.795746, -91.366261, 0)),  # 22
    Part.LineSegment(V(47.795746, -91.366261, 0), V(41.568272, -120.65, 0)),  # 23
], False)
sketch6.addConstraint([
    Sketcher.Constraint("Coincident", 0, 2, 1, 1),
    Sketcher.Constraint("Coincident", 1, 2, 2, 1),
    Sketcher.Constraint("Coincident", 2, 2, 3, 1),
    Sketcher.Constraint("Coincident", 3, 2, 0, 1),
    Sketcher.Constraint("Coincident", 4, 2, 5, 1),
    Sketcher.Constraint("Coincident", 5, 2, 6, 1),
    Sketcher.Constraint("Coincident", 6, 2, 7, 1),
    Sketcher.Constraint("Coincident", 7, 2, 4, 1),
    Sketcher.Constraint("Coincident", 8, 2, 9, 1),
    Sketcher.Constraint("Coincident", 9, 2, 10, 1),
    Sketcher.Constraint("Coincident", 10, 2, 11, 1),
    Sketcher.Constraint("Coincident", 11, 2, 8, 1),
    Sketcher.Constraint("Coincident", 12, 2, 13, 1),
    Sketcher.Constraint("Coincident", 13, 2, 14, 1),
    Sketcher.Constraint("Coincident", 14, 2, 15, 1),
    Sketcher.Constraint("Coincident", 15, 2, 12, 1),
    Sketcher.Constraint("Coincident", 16, 2, 17, 1),
    Sketcher.Constraint("Coincident", 17, 2, 18, 1),
    Sketcher.Constraint("Coincident", 18, 2, 19, 1),
    Sketcher.Constraint("Coincident", 19, 2, 16, 1),
    Sketcher.Constraint("Coincident", 20, 2, 21, 1),
    Sketcher.Constraint("Coincident", 21, 2, 22, 1),
    Sketcher.Constraint("Coincident", 22, 2, 23, 1),
    Sketcher.Constraint("Coincident", 23, 2, 20, 1),
    Sketcher.Constraint("Horizontal", 0),
    Sketcher.Constraint("Horizontal", 4),
    Sketcher.Constraint("Horizontal", 9),
    Sketcher.Constraint("Horizontal", 13),
    Sketcher.Constraint("Horizontal", 17),
    Sketcher.Constraint("Horizontal", 20),
    Sketcher.Constraint("Horizontal", 3, 2, 12, 2),
    Sketcher.Constraint("Horizontal", 9, 2, 20, 2),
    Sketcher.Constraint("Vertical", 0, 2, 9, 2),
    Sketcher.Constraint("DistanceY", -1, 1, 0, 2, Q("6.5 in")),
    Sketcher.Constraint("DistanceY", 8, 2, -1, 1, Q("4.75 in")),
    Sketcher.Constraint("DistanceX", 3, 2, 15, 2, Q("5.8798001 in")),
    Sketcher.Constraint("DistanceX", 9, 1, 9, 2, Q("12.429028 mm")),
    Sketcher.Constraint("DistanceX", 13, 2, 13, 1, Q("12.112989 mm")),
    Sketcher.Constraint("DistanceX", 20, 1, 20, 2, Q("23.654468 mm")),
    Sketcher.Constraint("DistanceX", 2, 2, 3, 2, Q("8.250501 mm")),
    Sketcher.Constraint("DistanceY", 5, 2, 6, 2, Q("4.7693 mm")),
    Sketcher.Constraint("DistanceX", 6, 2, 4, 2, Q("3.934501 mm")),
    Sketcher.Constraint("DistanceX", 11, 2, 9, 2, Q("1.1596 mm")),
    Sketcher.Constraint("DistanceY", 14, 2, 2, 2, Q("7.947801 mm")),
    Sketcher.Constraint("DistanceX", 10, 2, 20, 2, Q("161.822401 mm")),
    Sketcher.Constraint("DistanceY", 22, 2, 19, 2, Q("62.3218 mm")),
    Sketcher.Constraint("Distance", 1, Q("36.30107 mm")),
    Sketcher.Constraint("Distance", 5, Q("90.45267 mm")),
    Sketcher.Constraint("Distance", 7, Q("83.91466 mm")),
    Sketcher.Constraint("Distance", 11, Q("5.454239 mm")),
    Sketcher.Constraint("Distance", 16, Q("69.76119 mm")),
    Sketcher.Constraint("Distance", 18, Q("73.779942 mm")),
    Sketcher.Constraint("Distance", 21, Q("28.962361 mm")),
    Sketcher.Constraint("Distance", 22, Q("12.731631 mm")),
    Sketcher.Constraint("DistanceX", 0, 2, 0, 1, Q("8.342177 mm")),
    Sketcher.Constraint("DistanceX", 4, 2, 4, 1, Q("4.427492 mm")),
    Sketcher.Constraint("DistanceX", 17, 2, 17, 1, Q("9.393364 mm")),
    Sketcher.Constraint("DistanceX", 1, 2, -1, 1, Q("107.989681 mm")),
    Sketcher.Constraint("DistanceX", 2, 2, -1, 1, Q("100.784529 mm")),
    Sketcher.Constraint("DistanceY", -1, 1, 2, 2, Q("127.452049 mm")),
    Sketcher.Constraint("DistanceX", 4, 2, -1, 1, Q("97.909911 mm")),
    Sketcher.Constraint("DistanceX", 10, 2, -1, 1, Q("96.599661 mm")),
    Sketcher.Constraint("DistanceY", 10, 2, -1, 1, Q("93.509428 mm")),
    Sketcher.Constraint("DistanceX", -1, 1, 12, 2, Q("65.29414 mm")),
    Sketcher.Constraint("DistanceY", -1, 1, 15, 2, Q("124.807519 mm")),
    Sketcher.Constraint("DistanceY", 19, 2, -1, 1, Q("29.044461 mm")),
    Sketcher.Constraint("DistanceX", -1, 1, 21, 2, Q("60.507689 mm")),
    Sketcher.Constraint("DistanceY", 5, 2, 2, 2, Q("144.557932 mm")),
    Sketcher.Constraint("DistanceX", 14, 2, 12, 2, Q("29.474382 mm")),
    Sketcher.Constraint("DistanceY", 16, 2, 14, 2, Q("79.05074 mm")),
    Sketcher.Constraint("DistanceX", 16, 2, 15, 2, Q("1.483829 mm")),
    Sketcher.Constraint("DistanceX", 18, 2, 17, 2, Q("18.01722 mm")),
])
pad6 = body6.newObject("PartDesign::Pad", "Pad005")
pad6.Profile = sketch6
pad6.Length = Q("1 in")
body7 = doc.addObject("PartDesign::Body", "Body006")
body7.AllowCompound = True

# Sketch on XY plane
sketch7 = body7.newObject("Sketcher::SketchObject", "Sketch006")
sketch7.AttachmentSupport = (doc.getObject("XY_Plane006"), [""])
sketch7.MapMode = "FlatFace"
sketch7.addGeometry([
    Part.LineSegment(V(-100.784529, 127.452049, 0), V(-107.989681, 129.502723, 0)),  # 0
    Part.LineSegment(V(-107.989681, 129.502723, 0), V(-97.909911, 71.160406, 0)),  # 1
    Part.LineSegment(V(-97.909911, 71.160406, 0), V(-93.482419, 71.160406, 0)),  # 2
    Part.LineSegment(V(-93.482419, 71.160406, 0), V(-100.784529, 127.452049, 0)),  # 3
    Part.LineSegment(V(55.329066, 40.453508, 0), V(56.812895, 124.807519, 0)),  # 4
    Part.LineSegment(V(56.812895, 124.807519, 0), V(35.819758, 119.504248, 0)),  # 5
    Part.LineSegment(V(35.819758, 119.504248, 0), V(45.935702, 40.453508, 0)),  # 6
    Part.LineSegment(V(45.935702, 40.453508, 0), V(55.329066, 40.453508, 0)),  # 7
    Part.LineSegment(V(47.795746, -91.366261, 0), V(60.507689, -92.07402, 0)),  # 8
    Part.LineSegment(V(60.507689, -92.07402, 0), V(49.274652, -29.044461, 0)),  # 9
    Part.LineSegment(V(49.274652, -29.044461, 0), V(27.918482, -31.092698, 0)),  # 10
    Part.LineSegment(V(27.918482, -31.092698, 0), V(47.795746, -91.366261, 0)),  # 11
    Part.LineSegment(V(-117.677249, -17.105883, 0), V(-102.035805, -93.953341, 0)),  # 12
    Part.LineSegment(V(-102.035805, -93.953341, 0), V(-96.599661, -93.509428, 0)),  # 13
    Part.LineSegment(V(-96.599661, -93.509428, 0), V(-101.844412, -12.336583, 0)),  # 14
    Part.LineSegment(V(-101.844412, -12.336583, 0), V(-117.677249, -17.105883, 0)),  # 15
], False)
sketch7.addConstraint([
    Sketcher.Constraint("Coincident", 0, 2, 1, 1),
    Sketcher.Constraint("Coincident", 1, 2, 2, 1),
    Sketcher.Constraint("Coincident", 2, 2, 3, 1),
    Sketcher.Constraint("Coincident", 3, 2, 0, 1),
    Sketcher.Constraint("Coincident", 4, 2, 5, 1),
    Sketcher.Constraint("Coincident", 5, 2, 6, 1),
    Sketcher.Constraint("Coincident", 6, 2, 7, 1),
    Sketcher.Constraint("Coincident", 7, 2, 4, 1),
    Sketcher.Constraint("Coincident", 8, 2, 9, 1),
    Sketcher.Constraint("Coincident", 9, 2, 10, 1),
    Sketcher.Constraint("Coincident", 10, 2, 11, 1),
    Sketcher.Constraint("Coincident", 11, 2, 8, 1),
    Sketcher.Constraint("Coincident", 12, 2, 13, 1),
    Sketcher.Constraint("Coincident", 13, 2, 14, 1),
    Sketcher.Constraint("Coincident", 14, 2, 15, 1),
    Sketcher.Constraint("Coincident", 15, 2, 12, 1),
    Sketcher.Constraint("Horizontal", 2),
    Sketcher.Constraint("Horizontal", 7),
    Sketcher.Constraint("DistanceY", 5, 2, 3, 2, Q("7.947801 mm")),
    Sketcher.Constraint("DistanceY", 11, 2, 9, 2, Q("62.3218 mm")),
    Sketcher.Constraint("DistanceX", 14, 2, 1, 2, Q("3.934501 mm")),
    Sketcher.Constraint("DistanceY", 15, 2, 14, 2, Q("4.7693 mm")),
    Sketcher.Constraint("Distance", 3, Q("56.763279 mm")),
    Sketcher.Constraint("Distance", 4, Q("84.367061 mm")),
    Sketcher.Constraint("Distance", 6, Q("79.695369 mm")),
    Sketcher.Constraint("Distance", 8, Q("12.731631 mm")),
    Sketcher.Constraint("Distance", 11, Q("63.46659 mm")),
    Sketcher.Constraint("Distance", 13, Q("5.454239 mm")),
    Sketcher.Constraint("DistanceX", 2, 1, 2, 2, Q("4.427492 mm")),
    Sketcher.Constraint("DistanceX", 7, 1, 7, 2, Q("9.393364 mm")),
    Sketcher.Constraint("DistanceX", 0, 2, -1, 1, Q("107.989681 mm")),
    Sketcher.Constraint("DistanceX", 1, 2, -1, 1, Q("97.909911 mm")),
    Sketcher.Constraint("DistanceX", 3, 2, -1, 1, Q("100.784529 mm")),
    Sketcher.Constraint("DistanceY", -1, 1, 3, 2, Q("127.452049 mm")),
    Sketcher.Constraint("DistanceY", -1, 1, 4, 2, Q("124.807519 mm")),
    Sketcher.Constraint("DistanceX", -1, 1, 8, 2, Q("60.507689 mm")),
    Sketcher.Constraint("DistanceY", 8, 2, -1, 1, Q("92.07402 mm")),
    Sketcher.Constraint("DistanceY", 9, 2, -1, 1, Q("29.044461 mm")),
    Sketcher.Constraint("DistanceY", 12, 2, -1, 1, Q("93.953341 mm")),
    Sketcher.Constraint("DistanceX", 13, 2, -1, 1, Q("96.599661 mm")),
    Sketcher.Constraint("DistanceY", 13, 2, -1, 1, Q("93.509428 mm")),
    Sketcher.Constraint("DistanceX", 15, 2, -1, 1, Q("117.677249 mm")),
    Sketcher.Constraint("DistanceX", 1, 2, 5, 2, Q("133.729669 mm")),
    Sketcher.Constraint("DistanceY", 6, 2, 5, 2, Q("79.05074 mm")),
    Sketcher.Constraint("DistanceX", 6, 2, 9, 2, Q("3.33895 mm")),
    Sketcher.Constraint("DistanceX", 10, 2, 9, 2, Q("21.35617 mm")),
    Sketcher.Constraint("DistanceY", 14, 2, 1, 2, Q("83.496989 mm")),
    Sketcher.Constraint("Distance", 0, Q("7.491294 mm")),
])
pad7 = body7.newObject("PartDesign::Pad", "Pad006")
pad7.Profile = sketch7
pad7.Length = Q("1 in")

doc.recompute()
